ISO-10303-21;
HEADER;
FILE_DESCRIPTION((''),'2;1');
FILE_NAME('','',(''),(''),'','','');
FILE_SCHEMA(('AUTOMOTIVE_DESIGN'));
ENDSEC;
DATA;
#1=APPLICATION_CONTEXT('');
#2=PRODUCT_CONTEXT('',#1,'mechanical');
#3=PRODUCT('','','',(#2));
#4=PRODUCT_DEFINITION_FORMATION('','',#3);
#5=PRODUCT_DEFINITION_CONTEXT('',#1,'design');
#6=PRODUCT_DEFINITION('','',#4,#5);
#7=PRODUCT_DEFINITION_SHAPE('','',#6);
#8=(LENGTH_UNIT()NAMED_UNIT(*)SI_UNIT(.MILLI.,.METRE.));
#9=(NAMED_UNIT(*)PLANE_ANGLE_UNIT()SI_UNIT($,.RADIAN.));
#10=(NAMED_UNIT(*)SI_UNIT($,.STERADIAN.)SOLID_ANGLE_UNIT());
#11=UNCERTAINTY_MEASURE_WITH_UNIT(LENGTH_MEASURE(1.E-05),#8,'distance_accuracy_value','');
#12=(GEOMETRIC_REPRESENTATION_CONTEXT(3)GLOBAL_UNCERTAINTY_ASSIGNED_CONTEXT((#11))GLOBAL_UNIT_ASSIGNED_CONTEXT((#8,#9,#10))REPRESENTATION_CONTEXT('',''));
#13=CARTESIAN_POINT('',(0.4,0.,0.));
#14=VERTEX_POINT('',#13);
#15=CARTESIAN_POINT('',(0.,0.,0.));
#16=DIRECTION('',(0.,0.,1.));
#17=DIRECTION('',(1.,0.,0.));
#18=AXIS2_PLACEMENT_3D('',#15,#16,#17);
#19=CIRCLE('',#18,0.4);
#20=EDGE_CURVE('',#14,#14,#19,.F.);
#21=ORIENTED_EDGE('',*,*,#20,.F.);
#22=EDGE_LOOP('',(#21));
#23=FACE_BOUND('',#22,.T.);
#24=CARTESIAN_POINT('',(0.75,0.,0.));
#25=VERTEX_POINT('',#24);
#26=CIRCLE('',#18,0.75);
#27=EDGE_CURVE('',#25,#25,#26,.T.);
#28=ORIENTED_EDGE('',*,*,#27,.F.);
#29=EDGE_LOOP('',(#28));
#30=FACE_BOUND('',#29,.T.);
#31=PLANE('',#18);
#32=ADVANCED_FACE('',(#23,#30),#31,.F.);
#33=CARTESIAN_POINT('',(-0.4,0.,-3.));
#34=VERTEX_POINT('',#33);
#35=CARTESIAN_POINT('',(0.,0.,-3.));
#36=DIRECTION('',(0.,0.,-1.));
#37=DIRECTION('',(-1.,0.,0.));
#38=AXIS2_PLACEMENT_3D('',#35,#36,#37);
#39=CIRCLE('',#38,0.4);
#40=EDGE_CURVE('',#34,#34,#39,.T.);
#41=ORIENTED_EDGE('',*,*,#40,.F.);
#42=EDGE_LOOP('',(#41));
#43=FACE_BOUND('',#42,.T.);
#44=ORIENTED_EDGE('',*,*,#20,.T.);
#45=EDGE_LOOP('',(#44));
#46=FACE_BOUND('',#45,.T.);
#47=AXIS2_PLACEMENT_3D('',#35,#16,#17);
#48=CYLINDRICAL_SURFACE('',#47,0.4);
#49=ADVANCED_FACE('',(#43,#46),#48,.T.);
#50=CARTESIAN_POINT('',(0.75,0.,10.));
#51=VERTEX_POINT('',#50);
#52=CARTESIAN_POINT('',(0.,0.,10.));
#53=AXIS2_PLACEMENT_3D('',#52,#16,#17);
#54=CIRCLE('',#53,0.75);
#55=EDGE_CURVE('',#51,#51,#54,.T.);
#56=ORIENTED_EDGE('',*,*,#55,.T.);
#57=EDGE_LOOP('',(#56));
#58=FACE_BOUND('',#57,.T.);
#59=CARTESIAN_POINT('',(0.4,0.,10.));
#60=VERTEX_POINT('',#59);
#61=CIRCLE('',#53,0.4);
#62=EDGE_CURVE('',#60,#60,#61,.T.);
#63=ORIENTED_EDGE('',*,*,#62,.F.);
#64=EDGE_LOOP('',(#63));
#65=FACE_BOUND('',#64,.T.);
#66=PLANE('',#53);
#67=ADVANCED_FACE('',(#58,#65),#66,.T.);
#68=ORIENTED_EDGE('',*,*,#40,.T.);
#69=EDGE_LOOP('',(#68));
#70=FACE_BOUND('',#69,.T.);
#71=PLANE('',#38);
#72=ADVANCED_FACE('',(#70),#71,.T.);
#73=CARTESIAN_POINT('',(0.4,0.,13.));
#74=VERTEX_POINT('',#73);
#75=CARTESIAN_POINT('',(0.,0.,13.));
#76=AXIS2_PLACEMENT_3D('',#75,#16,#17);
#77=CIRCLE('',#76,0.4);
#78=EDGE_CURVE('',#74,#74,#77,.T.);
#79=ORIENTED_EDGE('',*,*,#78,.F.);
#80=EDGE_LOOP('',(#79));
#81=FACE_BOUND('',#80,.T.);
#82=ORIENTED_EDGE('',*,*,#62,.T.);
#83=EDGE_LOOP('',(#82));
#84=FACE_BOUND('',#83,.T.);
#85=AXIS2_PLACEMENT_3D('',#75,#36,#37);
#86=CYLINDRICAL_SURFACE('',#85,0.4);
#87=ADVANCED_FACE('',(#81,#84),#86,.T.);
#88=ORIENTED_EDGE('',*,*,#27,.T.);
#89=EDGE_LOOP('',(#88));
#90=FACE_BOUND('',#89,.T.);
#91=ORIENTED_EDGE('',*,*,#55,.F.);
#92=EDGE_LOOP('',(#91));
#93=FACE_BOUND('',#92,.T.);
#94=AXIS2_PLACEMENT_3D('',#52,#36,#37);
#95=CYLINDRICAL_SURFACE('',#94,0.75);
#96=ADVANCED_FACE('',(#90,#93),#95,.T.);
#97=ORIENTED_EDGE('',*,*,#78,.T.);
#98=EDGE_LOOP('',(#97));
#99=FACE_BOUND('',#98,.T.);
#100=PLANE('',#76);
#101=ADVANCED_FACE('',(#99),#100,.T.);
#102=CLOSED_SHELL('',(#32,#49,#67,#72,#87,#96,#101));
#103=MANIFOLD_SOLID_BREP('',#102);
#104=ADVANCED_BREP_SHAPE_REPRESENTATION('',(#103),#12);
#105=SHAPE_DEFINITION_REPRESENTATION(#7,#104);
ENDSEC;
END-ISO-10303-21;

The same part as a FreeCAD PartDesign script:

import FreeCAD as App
import Part
import Sketcher

V = App.Vector
Q = App.Units.Quantity

doc = App.newDocument("Part")
body = doc.addObject("PartDesign::Body", "Body")

sketch1 = body.newObject("Sketcher::SketchObject", "Sketch")
sketch1.AttachmentSupport = (doc.getObject("XY_Plane"), [""])
sketch1.MapMode = "FlatFace"
sketch1.addGeometry(Part.Circle(V(0, 0, 0), V(0, 0, 1), 0.75), False)
sketch1.addConstraint(Sketcher.Constraint("Coincident", 0, 3, -1, 1))
sketch1.addConstraint(Sketcher.Constraint("Diameter", 0, Q("1.5 mm")))
pad1 = body.newObject("PartDesign::Pad", "Pad")
pad1.Profile = sketch1
pad1.Length = 10

sketch2 = body.newObject("Sketcher::SketchObject", "Sketch001")
sketch2.AttachmentSupport = (doc.getObject("XY_Plane"), [""])
sketch2.MapMode = "FlatFace"
sketch2.AttachmentOffset = App.Placement(V(0, 0, 10), App.Rotation())
sketch2.addGeometry(Part.Circle(V(0, 0, 0), V(0, 0, 1), 0.4), False)
sketch2.addConstraint(Sketcher.Constraint("Coincident", 0, 3, -1, 1))
sketch2.addConstraint(Sketcher.Constraint("Diameter", 0, Q("0.8 mm")))
pad2 = body.newObject("PartDesign::Pad", "Pad001")
pad2.Profile = sketch2
pad2.Length = 3

sketch3 = body.newObject("Sketcher::SketchObject", "Sketch002")
sketch3.AttachmentSupport = (doc.getObject("XY_Plane"), [""])
sketch3.MapMode = "FlatFace"
sketch3.addGeometry(Part.Circle(V(0, 0, 0), V(0, 0, 1), 0.4), False)
sketch3.addConstraint(Sketcher.Constraint("Coincident", 0, 3, -1, 1))
sketch3.addConstraint(Sketcher.Constraint("Diameter", 0, Q("0.8 mm")))
pad3 = body.newObject("PartDesign::Pad", "Pad002")
pad3.Profile = sketch3
pad3.Length = 3
pad3.Reversed = True

doc.recompute()
